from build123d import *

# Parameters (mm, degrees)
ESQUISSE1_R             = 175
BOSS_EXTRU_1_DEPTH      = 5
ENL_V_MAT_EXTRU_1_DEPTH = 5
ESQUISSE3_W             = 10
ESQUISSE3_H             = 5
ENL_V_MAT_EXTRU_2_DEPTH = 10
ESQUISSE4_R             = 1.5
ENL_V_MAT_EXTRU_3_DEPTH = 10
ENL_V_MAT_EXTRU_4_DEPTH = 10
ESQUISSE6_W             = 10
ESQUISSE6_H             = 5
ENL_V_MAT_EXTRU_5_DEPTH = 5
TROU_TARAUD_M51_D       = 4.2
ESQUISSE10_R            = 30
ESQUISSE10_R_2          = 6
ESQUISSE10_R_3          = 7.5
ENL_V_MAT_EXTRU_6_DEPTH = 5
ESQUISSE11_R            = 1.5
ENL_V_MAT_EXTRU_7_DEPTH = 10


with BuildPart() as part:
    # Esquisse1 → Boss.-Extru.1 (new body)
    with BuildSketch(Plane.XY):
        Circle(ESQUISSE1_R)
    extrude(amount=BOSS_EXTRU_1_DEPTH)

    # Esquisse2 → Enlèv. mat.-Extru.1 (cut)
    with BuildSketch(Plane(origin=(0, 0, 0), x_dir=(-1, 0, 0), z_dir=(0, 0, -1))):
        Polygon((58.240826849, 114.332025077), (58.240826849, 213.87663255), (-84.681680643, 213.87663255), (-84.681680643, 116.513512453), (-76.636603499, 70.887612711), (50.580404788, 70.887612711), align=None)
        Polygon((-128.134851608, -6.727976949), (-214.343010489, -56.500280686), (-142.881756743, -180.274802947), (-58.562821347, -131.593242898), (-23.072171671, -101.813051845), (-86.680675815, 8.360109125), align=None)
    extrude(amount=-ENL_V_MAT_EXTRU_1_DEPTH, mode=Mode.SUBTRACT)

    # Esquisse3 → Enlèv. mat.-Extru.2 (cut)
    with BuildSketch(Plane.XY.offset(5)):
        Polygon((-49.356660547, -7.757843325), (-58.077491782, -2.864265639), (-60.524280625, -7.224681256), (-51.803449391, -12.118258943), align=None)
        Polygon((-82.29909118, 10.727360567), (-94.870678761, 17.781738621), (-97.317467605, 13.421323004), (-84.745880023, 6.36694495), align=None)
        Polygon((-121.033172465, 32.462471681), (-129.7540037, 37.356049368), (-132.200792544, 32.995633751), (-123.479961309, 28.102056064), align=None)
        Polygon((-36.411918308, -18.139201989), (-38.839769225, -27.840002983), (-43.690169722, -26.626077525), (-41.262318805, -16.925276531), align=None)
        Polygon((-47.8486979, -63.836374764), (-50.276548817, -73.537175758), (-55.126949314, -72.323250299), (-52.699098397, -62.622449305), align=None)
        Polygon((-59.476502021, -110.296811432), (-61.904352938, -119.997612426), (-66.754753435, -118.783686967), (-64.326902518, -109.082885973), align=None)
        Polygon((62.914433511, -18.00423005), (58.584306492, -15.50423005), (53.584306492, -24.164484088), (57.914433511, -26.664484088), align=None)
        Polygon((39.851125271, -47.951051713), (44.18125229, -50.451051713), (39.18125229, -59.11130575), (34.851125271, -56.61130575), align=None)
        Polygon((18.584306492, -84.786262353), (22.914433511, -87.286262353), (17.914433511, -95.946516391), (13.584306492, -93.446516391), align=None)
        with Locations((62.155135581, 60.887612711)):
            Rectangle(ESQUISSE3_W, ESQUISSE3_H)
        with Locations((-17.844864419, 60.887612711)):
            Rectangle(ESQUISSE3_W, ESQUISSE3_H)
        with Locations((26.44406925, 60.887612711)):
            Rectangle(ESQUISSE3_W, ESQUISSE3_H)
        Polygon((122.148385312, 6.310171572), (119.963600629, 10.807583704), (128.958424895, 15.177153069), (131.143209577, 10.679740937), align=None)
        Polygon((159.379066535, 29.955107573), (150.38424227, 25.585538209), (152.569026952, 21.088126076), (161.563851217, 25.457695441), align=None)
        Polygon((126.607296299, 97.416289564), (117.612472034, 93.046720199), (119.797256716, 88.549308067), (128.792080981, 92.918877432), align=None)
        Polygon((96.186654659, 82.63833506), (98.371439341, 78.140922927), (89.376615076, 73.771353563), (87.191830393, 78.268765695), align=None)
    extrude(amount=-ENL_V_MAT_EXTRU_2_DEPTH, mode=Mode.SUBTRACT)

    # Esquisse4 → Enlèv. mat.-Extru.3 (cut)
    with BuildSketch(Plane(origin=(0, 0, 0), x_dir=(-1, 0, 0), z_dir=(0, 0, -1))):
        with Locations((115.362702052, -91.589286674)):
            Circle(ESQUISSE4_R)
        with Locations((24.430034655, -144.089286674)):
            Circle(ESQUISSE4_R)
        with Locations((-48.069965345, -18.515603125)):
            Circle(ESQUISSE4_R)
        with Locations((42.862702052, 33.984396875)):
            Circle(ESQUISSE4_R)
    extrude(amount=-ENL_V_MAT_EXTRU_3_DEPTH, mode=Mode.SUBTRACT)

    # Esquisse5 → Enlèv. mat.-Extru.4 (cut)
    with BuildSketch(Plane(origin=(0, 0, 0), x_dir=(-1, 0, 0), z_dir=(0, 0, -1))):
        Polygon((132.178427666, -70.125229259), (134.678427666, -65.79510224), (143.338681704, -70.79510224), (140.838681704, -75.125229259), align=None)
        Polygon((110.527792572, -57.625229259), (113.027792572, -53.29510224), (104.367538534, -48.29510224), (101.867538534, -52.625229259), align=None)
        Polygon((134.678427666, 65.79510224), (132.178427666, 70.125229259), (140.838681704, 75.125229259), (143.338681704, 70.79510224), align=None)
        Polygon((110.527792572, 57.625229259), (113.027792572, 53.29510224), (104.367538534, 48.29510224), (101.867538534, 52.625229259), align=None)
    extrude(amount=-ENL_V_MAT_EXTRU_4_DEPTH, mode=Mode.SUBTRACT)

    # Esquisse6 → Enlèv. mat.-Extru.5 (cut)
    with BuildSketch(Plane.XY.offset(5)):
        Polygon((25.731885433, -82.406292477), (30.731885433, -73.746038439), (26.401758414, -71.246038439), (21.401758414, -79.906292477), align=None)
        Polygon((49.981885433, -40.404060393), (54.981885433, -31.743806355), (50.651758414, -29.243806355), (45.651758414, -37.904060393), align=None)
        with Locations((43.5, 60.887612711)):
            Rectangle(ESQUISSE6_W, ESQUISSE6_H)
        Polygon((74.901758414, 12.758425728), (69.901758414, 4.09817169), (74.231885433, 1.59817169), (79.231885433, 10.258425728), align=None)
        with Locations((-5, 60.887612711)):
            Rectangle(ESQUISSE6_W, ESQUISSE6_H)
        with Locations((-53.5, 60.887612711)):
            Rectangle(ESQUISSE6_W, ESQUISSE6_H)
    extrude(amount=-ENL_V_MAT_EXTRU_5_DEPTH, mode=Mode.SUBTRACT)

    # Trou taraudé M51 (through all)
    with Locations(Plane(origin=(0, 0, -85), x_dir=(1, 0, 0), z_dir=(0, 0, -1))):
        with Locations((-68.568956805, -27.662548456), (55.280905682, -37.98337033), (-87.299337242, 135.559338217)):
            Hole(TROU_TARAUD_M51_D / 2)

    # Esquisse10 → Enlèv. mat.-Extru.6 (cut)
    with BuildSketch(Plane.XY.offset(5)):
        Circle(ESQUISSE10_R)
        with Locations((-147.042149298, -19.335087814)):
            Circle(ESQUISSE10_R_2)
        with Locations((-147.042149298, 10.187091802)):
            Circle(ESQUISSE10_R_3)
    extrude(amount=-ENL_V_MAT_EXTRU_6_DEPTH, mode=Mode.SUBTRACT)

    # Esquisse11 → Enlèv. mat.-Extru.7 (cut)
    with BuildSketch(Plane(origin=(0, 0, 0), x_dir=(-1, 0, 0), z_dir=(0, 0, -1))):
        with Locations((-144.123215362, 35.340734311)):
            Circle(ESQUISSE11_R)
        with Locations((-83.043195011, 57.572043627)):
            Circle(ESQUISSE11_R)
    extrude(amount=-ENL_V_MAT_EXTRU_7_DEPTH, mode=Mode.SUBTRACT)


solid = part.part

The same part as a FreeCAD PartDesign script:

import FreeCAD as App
import Part
import Sketcher
Q = App.Units.Quantity

doc = App.newDocument("Part")
body = doc.addObject("PartDesign::Body", "Body")

sketch1 = body.newObject("Sketcher::SketchObject", "Sketch")
sketch1.AttachmentSupport = (doc.getObject("XY_Plane"), [""])
sketch1.MapMode = "FlatFace"
sketch1.addGeometry(Part.Circle(App.Vector(0, 0, 0), App.Vector(0, 0, 1), 175), False)
sketch1.addConstraint([
    Sketcher.Constraint("Coincident", 0, 3, -1, 1),
    Sketcher.Constraint("Diameter", 0, 350.0),
])
pad1 = body.newObject("PartDesign::Pad", "Pad")
pad1.Profile = sketch1
pad1.Length = 5

sketch2 = body.newObject("Sketcher::SketchObject", "Sketch001")
sketch2.AttachmentSupport = (doc.getObject("XY_Plane"), [""])
sketch2.MapMode = "FlatFace"
sketch2.addGeometry([
    Part.LineSegment(App.Vector(-58.240827, 114.332025, 0), App.Vector(-58.240827, 213.876633, 0)),
    Part.LineSegment(App.Vector(-58.240827, 213.876633, 0), App.Vector(84.681681, 213.876633, 0)),
    Part.LineSegment(App.Vector(84.681681, 213.876633, 0), App.Vector(84.681681, 116.513512, 0)),
    Part.LineSegment(App.Vector(84.681681, 116.513512, 0), App.Vector(76.636603, 70.887613, 0)),
    Part.LineSegment(App.Vector(76.636603, 70.887613, 0), App.Vector(-50.580405, 70.887613, 0)),
    Part.LineSegment(App.Vector(-50.580405, 70.887613, 0), App.Vector(-58.240827, 114.332025, 0)),
    Part.LineSegment(App.Vector(128.134852, -6.727977, 0), App.Vector(214.34301, -56.500281, 0)),
    Part.LineSegment(App.Vector(214.34301, -56.500281, 0), App.Vector(142.881757, -180.274803, 0)),
    Part.LineSegment(App.Vector(142.881757, -180.274803, 0), App.Vector(58.562821, -131.593243, 0)),
    Part.LineSegment(App.Vector(58.562821, -131.593243, 0), App.Vector(23.072172, -101.813052, 0)),
    Part.LineSegment(App.Vector(23.072172, -101.813052, 0), App.Vector(86.680676, 8.360109, 0)),
    Part.LineSegment(App.Vector(86.680676, 8.360109, 0), App.Vector(128.134852, -6.727977, 0)),
], False)
sketch2.addConstraint([
    Sketcher.Constraint("Coincident", 0, 2, 1, 1),
    Sketcher.Constraint("Coincident", 1, 2, 2, 1),
    Sketcher.Constraint("Coincident", 2, 2, 3, 1),
    Sketcher.Constraint("Coincident", 3, 2, 4, 1),
    Sketcher.Constraint("Coincident", 4, 2, 5, 1),
    Sketcher.Constraint("Coincident", 5, 2, 0, 1),
    Sketcher.Constraint("Coincident", 6, 2, 7, 1),
    Sketcher.Constraint("Coincident", 7, 2, 8, 1),
    Sketcher.Constraint("Coincident", 8, 2, 9, 1),
    Sketcher.Constraint("Coincident", 9, 2, 10, 1),
    Sketcher.Constraint("Coincident", 10, 2, 11, 1),
    Sketcher.Constraint("Coincident", 11, 2, 6, 1),
    Sketcher.Constraint("Vertical", 0),
    Sketcher.Constraint("Horizontal", 1),
    Sketcher.Constraint("Vertical", 2),
    Sketcher.Constraint("Horizontal", 4),
    Sketcher.Constraint("Perpendicular", 6, 7),
    Sketcher.Constraint("Perpendicular", 7, 8),
    Sketcher.Constraint("Perpendicular", 8, 10),
    Sketcher.Constraint("Equal", 3, 9),
    Sketcher.Constraint("Equal", 5, 11),
    Sketcher.Constraint("Angle", 3, Q("-100 deg")),
    Sketcher.Constraint("Angle", 5, Q("100 deg")),
    Sketcher.Constraint("Angle", 6, Q("-30 deg")),
    Sketcher.Constraint("Angle", 9, Q("140 deg")),
    Sketcher.Constraint("Angle", 11, Q("-20 deg")),
    Sketcher.Constraint("DistanceX", 4, 2, 4, 1, 127.217008),
    Sketcher.Constraint("DistanceY", 2, 2, 2, 1, 97.36312),
    Sketcher.Constraint("DistanceY", 3, 2, 2, 2, 45.6259),
    Sketcher.Constraint("Distance", 8, 97.36312),
    Sketcher.Constraint("Distance", 10, 127.217008),
    Sketcher.Constraint("DistanceX", 1, 1, 1, 2, 142.922507),
    Sketcher.Constraint("DistanceX", -1, 1, 1, 2, 84.681681),
    Sketcher.Constraint("DistanceX", -1, 1, 6, 2, 214.34301),
    Sketcher.Constraint("DistanceY", 6, 2, -1, 1, 56.500281),
    Sketcher.Constraint("DistanceY", 7, 2, 5, 2, 294.606828),
])
pocket1 = body.newObject("PartDesign::Pocket", "Pocket")
pocket1.Profile = sketch2
pocket1.Length = 5
pocket1.Reversed = True

sketch3 = body.newObject("Sketcher::SketchObject", "Sketch002")
sketch3.AttachmentSupport = (doc.getObject("XY_Plane"), [""])
sketch3.MapMode = "FlatFace"
sketch3.AttachmentOffset = App.Placement(App.Vector(0, 0, 5), App.Rotation())
sketch3.addGeometry([
    Part.LineSegment(App.Vector(-49.356661, -7.757843, 0), App.Vector(-58.077492, -2.864266, 0)),
    Part.LineSegment(App.Vector(-58.077492, -2.864266, 0), App.Vector(-60.524281, -7.224681, 0)),
    Part.LineSegment(App.Vector(-60.524281, -7.224681, 0), App.Vector(-51.803449, -12.118259, 0)),
    Part.LineSegment(App.Vector(-51.803449, -12.118259, 0), App.Vector(-49.356661, -7.757843, 0)),
    Part.LineSegment(App.Vector(-82.299091, 10.727361, 0), App.Vector(-94.870679, 17.781739, 0)),
    Part.LineSegment(App.Vector(-94.870679, 17.781739, 0), App.Vector(-97.317468, 13.421323, 0)),
    Part.LineSegment(App.Vector(-97.317468, 13.421323, 0), App.Vector(-84.74588, 6.366945, 0)),
    Part.LineSegment(App.Vector(-84.74588, 6.366945, 0), App.Vector(-82.299091, 10.727361, 0)),
    Part.LineSegment(App.Vector(-121.033172, 32.462472, 0), App.Vector(-129.754004, 37.356049, 0)),
    Part.LineSegment(App.Vector(-129.754004, 37.356049, 0), App.Vector(-132.200793, 32.995634, 0)),
    Part.LineSegment(App.Vector(-132.200793, 32.995634, 0), App.Vector(-123.479961, 28.102056, 0)),
    Part.LineSegment(App.Vector(-123.479961, 28.102056, 0), App.Vector(-121.033172, 32.462472, 0)),
    Part.LineSegment(App.Vector(-38.839769, -27.840003, 0), App.Vector(-36.411918, -18.139202, 0)),
    Part.LineSegment(App.Vector(-36.411918, -18.139202, 0), App.Vector(-41.262319, -16.925277, 0)),
    Part.LineSegment(App.Vector(-41.262319, -16.925277, 0), App.Vector(-43.69017, -26.626078, 0)),
    Part.LineSegment(App.Vector(-43.69017, -26.626078, 0), App.Vector(-38.839769, -27.840003, 0)),
    Part.LineSegment(App.Vector(-50.276549, -73.537176, 0), App.Vector(-47.848698, -63.836375, 0)),
    Part.LineSegment(App.Vector(-47.848698, -63.836375, 0), App.Vector(-52.699098, -62.622449, 0)),
    Part.LineSegment(App.Vector(-52.699098, -62.622449, 0), App.Vector(-55.126949, -72.32325, 0)),
    Part.LineSegment(App.Vector(-55.126949, -72.32325, 0), App.Vector(-50.276549, -73.537176, 0)),
    Part.LineSegment(App.Vector(-61.904353, -119.997612, 0), App.Vector(-59.476502, -110.296811, 0)),
    Part.LineSegment(App.Vector(-59.476502, -110.296811, 0), App.Vector(-64.326903, -109.082886, 0)),
    Part.LineSegment(App.Vector(-64.326903, -109.082886, 0), App.Vector(-66.754753, -118.783687, 0)),
    Part.LineSegment(App.Vector(-66.754753, -118.783687, 0), App.Vector(-61.904353, -119.997612, 0)),
    Part.LineSegment(App.Vector(62.914434, -18.00423, 0), App.Vector(58.584306, -15.50423, 0)),
    Part.LineSegment(App.Vector(58.584306, -15.50423, 0), App.Vector(53.584306, -24.164484, 0)),
    Part.LineSegment(App.Vector(53.584306, -24.164484, 0), App.Vector(57.914434, -26.664484, 0)),
    Part.LineSegment(App.Vector(57.914434, -26.664484, 0), App.Vector(62.914434, -18.00423, 0)),
    Part.LineSegment(App.Vector(44.181252, -50.451052, 0), App.Vector(39.851125, -47.951052, 0)),
    Part.LineSegment(App.Vector(39.851125, -47.951052, 0), App.Vector(34.851125, -56.611306, 0)),
    Part.LineSegment(App.Vector(34.851125, -56.611306, 0), App.Vector(39.181252, -59.111306, 0)),
    Part.LineSegment(App.Vector(39.181252, -59.111306, 0), App.Vector(44.181252, -50.451052, 0)),
    Part.LineSegment(App.Vector(22.914434, -87.286262, 0), App.Vector(18.584306, -84.786262, 0)),
    Part.LineSegment(App.Vector(18.584306, -84.786262, 0), App.Vector(13.584306, -93.446516, 0)),
    Part.LineSegment(App.Vector(13.584306, -93.446516, 0), App.Vector(17.914434, -95.946516, 0)),
    Part.LineSegment(App.Vector(17.914434, -95.946516, 0), App.Vector(22.914434, -87.286262, 0)),
    Part.LineSegment(App.Vector(57.155136, 63.387613, 0), App.Vector(57.155136, 58.387613, 0)),
    Part.LineSegment(App.Vector(57.155136, 58.387613, 0), App.Vector(67.155136, 58.387613, 0)),
    Part.LineSegment(App.Vector(67.155136, 58.387613, 0), App.Vector(67.155136, 63.387613, 0)),
    Part.LineSegment(App.Vector(67.155136, 63.387613, 0), App.Vector(57.155136, 63.387613, 0)),
    Part.LineSegment(App.Vector(-22.844864, 63.387613, 0), App.Vector(-22.844864, 58.387613, 0)),
    Part.LineSegment(App.Vector(-22.844864, 58.387613, 0), App.Vector(-12.844864, 58.387613, 0)),
    Part.LineSegment(App.Vector(-12.844864, 58.387613, 0), App.Vector(-12.844864, 63.387613, 0)),
    Part.LineSegment(App.Vector(-12.844864, 63.387613, 0), App.Vector(-22.844864, 63.387613, 0)),
    Part.LineSegment(App.Vector(21.444069, 63.387613, 0), App.Vector(21.444069, 58.387613, 0)),
    Part.LineSegment(App.Vector(21.444069, 58.387613, 0), App.Vector(31.444069, 58.387613, 0)),
    Part.LineSegment(App.Vector(31.444069, 58.387613, 0), App.Vector(31.444069, 63.387613, 0)),
    Part.LineSegment(App.Vector(31.444069, 63.387613, 0), App.Vector(21.444069, 63.387613, 0)),
    Part.LineSegment(App.Vector(119.963601, 10.807584, 0), App.Vector(122.148385, 6.310172, 0)),
    Part.LineSegment(App.Vector(122.148385, 6.310172, 0), App.Vector(131.14321, 10.679741, 0)),
    Part.LineSegment(App.Vector(131.14321, 10.679741, 0), App.Vector(128.958425, 15.177153, 0)),
    Part.LineSegment(App.Vector(128.958425, 15.177153, 0), App.Vector(119.963601, 10.807584, 0)),
    Part.LineSegment(App.Vector(159.379067, 29.955108, 0), App.Vector(150.384242, 25.585538, 0)),
    Part.LineSegment(App.Vector(150.384242, 25.585538, 0), App.Vector(152.569027, 21.088126, 0)),
    Part.LineSegment(App.Vector(152.569027, 21.088126, 0), App.Vector(161.563851, 25.457695, 0)),
    Part.LineSegment(App.Vector(161.563851, 25.457695, 0), App.Vector(159.379067, 29.955108, 0)),
    Part.LineSegment(App.Vector(126.607296, 97.41629, 0), App.Vector(117.612472, 93.04672, 0)),
    Part.LineSegment(App.Vector(117.612472, 93.04672, 0), App.Vector(119.797257, 88.549308, 0)),
    Part.LineSegment(App.Vector(119.797257, 88.549308, 0), App.Vector(128.792081, 92.918877, 0)),
    Part.LineSegment(App.Vector(128.792081, 92.918877, 0), App.Vector(126.607296, 97.41629, 0)),
    Part.LineSegment(App.Vector(98.371439, 78.140923, 0), App.Vector(96.186655, 82.638335, 0)),
    Part.LineSegment(App.Vector(96.186655, 82.638335, 0), App.Vector(87.19183, 78.268766, 0)),
    Part.LineSegment(App.Vector(87.19183, 78.268766, 0), App.Vector(89.376615, 73.771354, 0)),
    Part.LineSegment(App.Vector(89.376615, 73.771354, 0), App.Vector(98.371439, 78.140923, 0)),
], False)
sketch3.addConstraint([
    Sketcher.Constraint("Coincident", 0, 2, 1, 1),
    Sketcher.Constraint("Coincident", 1, 2, 2, 1),
    Sketcher.Constraint("Coincident", 2, 2, 3, 1),
    Sketcher.Constraint("Coincident", 3, 2, 0, 1),
    Sketcher.Constraint("Coincident", 4, 2, 5, 1),
    Sketcher.Constraint("Coincident", 5, 2, 6, 1),
    Sketcher.Constraint("Coincident", 6, 2, 7, 1),
    Sketcher.Constraint("Coincident", 7, 2, 4, 1),
    Sketcher.Constraint("Coincident", 8, 2, 9, 1),
    Sketcher.Constraint("Coincident", 9, 2, 10, 1),
    Sketcher.Constraint("Coincident", 10, 2, 11, 1),
    Sketcher.Constraint("Coincident", 11, 2, 8, 1),
    Sketcher.Constraint("Coincident", 12, 2, 13, 1),
    Sketcher.Constraint("Coincident", 13, 2, 14, 1),
    Sketcher.Constraint("Coincident", 14, 2, 15, 1),
    Sketcher.Constraint("Coincident", 15, 2, 12, 1),
    Sketcher.Constraint("Coincident", 16, 2, 17, 1),
    Sketcher.Constraint("Coincident", 17, 2, 18, 1),
    Sketcher.Constraint("Coincident", 18, 2, 19, 1),
    Sketcher.Constraint("Coincident", 19, 2, 16, 1),
    Sketcher.Constraint("Coincident", 20, 2, 21, 1),
    Sketcher.Constraint("Coincident", 21, 2, 22, 1),
    Sketcher.Constraint("Coincident", 22, 2, 23, 1),
    Sketcher.Constraint("Coincident", 23, 2, 20, 1),
    Sketcher.Constraint("Coincident", 24, 2, 25, 1),
    Sketcher.Constraint("Coincident", 25, 2, 26, 1),
    Sketcher.Constraint("Coincident", 26, 2, 27, 1),
    Sketcher.Constraint("Coincident", 27, 2, 24, 1),
    Sketcher.Constraint("Coincident", 28, 2, 29, 1),
    Sketcher.Constraint("Coincident", 29, 2, 30, 1),
    Sketcher.Constraint("Coincident", 30, 2, 31, 1),
    Sketcher.Constraint("Coincident", 31, 2, 28, 1),
    Sketcher.Constraint("Coincident", 32, 2, 33, 1),
    Sketcher.Constraint("Coincident", 33, 2, 34, 1),
    Sketcher.Constraint("Coincident", 34, 2, 35, 1),
    Sketcher.Constraint("Coincident", 35, 2, 32, 1),
    Sketcher.Constraint("Coincident", 36, 2, 37, 1),
    Sketcher.Constraint("Coincident", 37, 2, 38, 1),
    Sketcher.Constraint("Coincident", 38, 2, 39, 1),
    Sketcher.Constraint("Coincident", 39, 2, 36, 1),
    Sketcher.Constraint("Coincident", 40, 2, 41, 1),
    Sketcher.Constraint("Coincident", 41, 2, 42, 1),
    Sketcher.Constraint("Coincident", 42, 2, 43, 1),
    Sketcher.Constraint("Coincident", 43, 2, 40, 1),
    Sketcher.Constraint("Coincident", 44, 2, 45, 1),
    Sketcher.Constraint("Coincident", 45, 2, 46, 1),
    Sketcher.Constraint("Coincident", 46, 2, 47, 1),
    Sketcher.Constraint("Coincident", 47, 2, 44, 1),
    Sketcher.Constraint("Coincident", 48, 2, 49, 1),
    Sketcher.Constraint("Coincident", 49, 2, 50, 1),
    Sketcher.Constraint("Coincident", 50, 2, 51, 1),
    Sketcher.Constraint("Coincident", 51, 2, 48, 1),
    Sketcher.Constraint("Coincident", 52, 2, 53, 1),
    Sketcher.Constraint("Coincident", 53, 2, 54, 1),
    Sketcher.Constraint("Coincident", 54, 2, 55, 1),
    Sketcher.Constraint("Coincident", 55, 2, 52, 1),
    Sketcher.Constraint("Coincident", 56, 2, 57, 1),
    Sketcher.Constraint("Coincident", 57, 2, 58, 1),
    Sketcher.Constraint("Coincident", 58, 2, 59, 1),
    Sketcher.Constraint("Coincident", 59, 2, 56, 1),
    Sketcher.Constraint("Coincident", 60, 2, 61, 1),
    Sketcher.Constraint("Coincident", 61, 2, 62, 1),
    Sketcher.Constraint("Coincident", 62, 2, 63, 1),
    Sketcher.Constraint("Coincident", 63, 2, 60, 1),
    Sketcher.Constraint("Vertical", 36),
    Sketcher.Constraint("Horizontal", 37),
    Sketcher.Constraint("Vertical", 38),
    Sketcher.Constraint("Horizontal", 39),
    Sketcher.Constraint("Vertical", 40),
    Sketcher.Constraint("Horizontal", 41),
    Sketcher.Constraint("Vertical", 42),
    Sketcher.Constraint("Horizontal", 43),
    Sketcher.Constraint("Vertical", 44),
    Sketcher.Constraint("Horizontal", 45),
    Sketcher.Constraint("Vertical", 46),
    Sketcher.Constraint("Horizontal", 47),
    Sketcher.Constraint("Perpendicular", 0, 1),
    Sketcher.Constraint("Perpendicular", 1, 2),
    Sketcher.Constraint("Perpendicular", 2, 3),
    Sketcher.Constraint("Perpendicular", 3, 4),
    Sketcher.Constraint("Perpendicular", 4, 5),
    Sketcher.Constraint("Perpendicular", 5, 6),
    Sketcher.Constraint("Perpendicular", 6, 7),
    Sketcher.Constraint("Perpendicular", 7, 8),
    Sketcher.Constraint("Perpendicular", 8, 9),
    Sketcher.Constraint("Perpendicular", 9, 10),
    Sketcher.Constraint("Perpendicular", 10, 11),
    Sketcher.Constraint("Perpendicular", 12, 13),
    Sketcher.Constraint("Perpendicular", 13, 14),
    Sketcher.Constraint("Perpendicular", 14, 15),
    Sketcher.Constraint("Perpendicular", 15, 16),
    Sketcher.Constraint("Perpendicular", 16, 17),
    Sketcher.Constraint("Perpendicular", 17, 18),
    Sketcher.Constraint("Perpendicular", 18, 19),
    Sketcher.Constraint("Perpendicular", 19, 20),
    Sketcher.Constraint("Perpendicular", 20, 21),
    Sketcher.Constraint("Perpendicular", 21, 22),
    Sketcher.Constraint("Perpendicular", 22, 23),
    Sketcher.Constraint("Perpendicular", 24, 25),
    Sketcher.Constraint("Perpendicular", 25, 26),
    Sketcher.Constraint("Perpendicular", 26, 27),
    Sketcher.Constraint("Perpendicular", 27, 28),
    Sketcher.Constraint("Perpendicular", 28, 29),
    Sketcher.Constraint("Perpendicular", 29, 30),
    Sketcher.Constraint("Perpendicular", 30, 31),
    Sketcher.Constraint("Perpendicular", 31, 32),
    Sketcher.Constraint("Perpendicular", 32, 33),
    Sketcher.Constraint("Perpendicular", 33, 34),
    Sketcher.Constraint("Perpendicular", 34, 35),
    Sketcher.Constraint("Perpendicular", 48, 49),
    Sketcher.Constraint("Perpendicular", 49, 50),
    Sketcher.Constraint("Perpendicular", 50, 51),
    Sketcher.Constraint("Parallel", 51, 52),
    Sketcher.Constraint("Perpendicular", 52, 53),
    Sketcher.Constraint("Perpendicular", 53, 54),
    Sketcher.Constraint("Perpendicular", 54, 55),
    Sketcher.Constraint("Perpendicular", 55, 56),
    Sketcher.Constraint("Perpendicular", 56, 57),
    Sketcher.Constraint("Perpendicular", 57, 58),
    Sketcher.Constraint("Perpendicular", 58, 59),
    Sketcher.Constraint("Parallel", 59, 60),
    Sketcher.Constraint("Perpendicular", 60, 61),
    Sketcher.Constraint("Perpendicular", 61, 62),
    Sketcher.Constraint("Perpendicular", 62, 63),
    Sketcher.Constraint("Horizontal", 37, 2, 40, 2),
    Sketcher.Constraint("Horizontal", 39, 2, 42, 2),
    Sketcher.Constraint("Horizontal", 41, 2, 44, 2),
    Sketcher.Constraint("Horizontal", 43, 2, 46, 2),
    Sketcher.Constraint("Equal", 39, 41),
    Sketcher.Constraint("Equal", 43, 45),
    Sketcher.Constraint("Equal", 3, 5),
    Sketcher.Constraint("Equal", 2, 8),
    Sketcher.Constraint("Equal", 7, 9),
    Sketcher.Constraint("Equal", 10, 12),
    Sketcher.Constraint("Equal", 11, 13),
    Sketcher.Constraint("Equal", 14, 16),
    Sketcher.Constraint("Equal", 15, 17),
    Sketcher.Constraint("Equal", 18, 20),
    Sketcher.Constraint("Equal", 19, 21),
    Sketcher.Constraint("Equal", 23, 24),
    Sketcher.Constraint("Equal", 22, 25),
    Sketcher.Constraint("Equal", 26, 28),
    Sketcher.Constraint("Equal", 27, 29),
    Sketcher.Constraint("Equal", 30, 32),
    Sketcher.Constraint("Equal", 31, 33),
    Sketcher.Constraint("Equal", 34, 48),
    Sketcher.Constraint("Equal", 35, 49),
    Sketcher.Constraint("Equal", 51, 52),
    Sketcher.Constraint("Equal", 50, 53),
    Sketcher.Constraint("Equal", 54, 56),
    Sketcher.Constraint("Equal", 55, 57),
    Sketcher.Constraint("Equal", 59, 60),
    Sketcher.Constraint("Equal", 58, 61),
    Sketcher.Constraint("DistanceX", 37, 1, 37, 2, 10.0),
    Sketcher.Constraint("DistanceY", 36, 2, 36, 1, 5.0),
    Sketcher.Constraint("Angle", 24, Q("150 deg")),
    Sketcher.Constraint("Distance", 0, 10.0),
    Sketcher.Constraint("Distance", 1, 5.0),
    Sketcher.Constraint("DistanceY", 12, 2, -1, 1, 18.139202),
    Sketcher.Constraint("DistanceX", 17, 2, -1, 1, 52.699098),
    Sketcher.Constraint("DistanceX", -1, 1, 51, 2, 119.963601),
    Sketcher.Constraint("DistanceX", 0, 2, -1, 1, 58.077492),
    Sketcher.Constraint("DistanceX", 1, 2, -1, 1, 60.524281),
    Sketcher.Constraint("DistanceY", 1, 2, -1, 1, 7.224681),
    Sketcher.Constraint("DistanceX", 4, 2, -1, 1, 94.870679),
    Sketcher.Constraint("DistanceY", -1, 1, 4, 2, 17.781739),
    Sketcher.Constraint("DistanceX", 6, 2, -1, 1, 84.74588),
    Sketcher.Constraint("DistanceY", -1, 1, 8, 2, 37.356049),
    Sketcher.Constraint("DistanceX", 10, 2, -1, 1, 123.479961),
    Sketcher.Constraint("DistanceX", 12, 2, -1, 1, 36.411918),
    Sketcher.Constraint("DistanceX", 13, 2, -1, 1, 41.262319),
    Sketcher.Constraint("DistanceY", 17, 2, -1, 1, 62.622449),
    Sketcher.Constraint("DistanceY", 20, 2, -1, 1, 110.296811),
    Sketcher.Constraint("DistanceY", 24, 2, -1, 1, 15.50423),
    Sketcher.Constraint("DistanceY", 28, 2, -1, 1, 47.951052),
    Sketcher.Constraint("DistanceX", -1, 1, 44, 2, 21.444069),
    Sketcher.Constraint("DistanceY", -1, 1, 48, 2, 6.310172),
    Sketcher.Constraint("DistanceX", -1, 1, 49, 2, 131.14321),
    Sketcher.Constraint("DistanceY", -1, 1, 52, 2, 25.585538),
    Sketcher.Constraint("DistanceX", -1, 1, 54, 2, 161.563851),
    Sketcher.Constraint("DistanceY", -1, 1, 56, 2, 93.04672),
    Sketcher.Constraint("DistanceX", -1, 1, 58, 2, 128.792081),
    Sketcher.Constraint("DistanceX", -1, 1, 61, 2, 87.19183),
    Sketcher.Constraint("DistanceX", 20, 2, -1, 1, 59.476502),
    Sketcher.Constraint("DistanceX", -1, 1, 24, 2, 58.584306),
    Sketcher.Constraint("DistanceX", -1, 1, 28, 2, 39.851125),
    Sketcher.Constraint("DistanceX", -1, 1, 32, 2, 18.584306),
    Sketcher.Constraint("DistanceY", 32, 2, -1, 1, 84.786262),
    Sketcher.Constraint("DistanceX", -1, 1, 36, 2, 57.155136),
    Sketcher.Constraint("DistanceY", -1, 1, 36, 2, 58.387613),
    Sketcher.Constraint("DistanceX", 40, 2, -1, 1, 22.844864),
    Sketcher.Constraint("DistanceY", -1, 1, 60, 2, 82.638335),
])
pocket2 = body.newObject("PartDesign::Pocket", "Pocket001")
pocket2.Profile = sketch3
pocket2.Length = 10

sketch4 = body.newObject("Sketcher::SketchObject", "Sketch003")
sketch4.AttachmentSupport = (doc.getObject("XY_Plane"), [""])
sketch4.MapMode = "FlatFace"
sketch4.addGeometry([
    Part.Circle(App.Vector(-115.362702, -91.589287, 0), App.Vector(0, 0, 1), 1.5),
    Part.Circle(App.Vector(-24.430035, -144.089287, 0), App.Vector(0, 0, 1), 1.5),
    Part.Circle(App.Vector(48.069965, -18.515603, 0), App.Vector(0, 0, 1), 1.5),
    Part.Circle(App.Vector(-42.862702, 33.984397, 0), App.Vector(0, 0, 1), 1.5),
], False)
sketch4.addConstraint([
    Sketcher.Constraint("Equal", 0, 1),
    Sketcher.Constraint("Equal", 1, 2),
    Sketcher.Constraint("Equal", 2, 3),
    Sketcher.Constraint("Diameter", 0, 3.0),
    Sketcher.Constraint("DistanceY", 1, 3, 0, 3, 52.5),
    Sketcher.Constraint("DistanceX", 1, 3, 2, 3, 72.5),
    Sketcher.Constraint("DistanceY", 2, 3, 3, 3, 52.5),
    Sketcher.Constraint("DistanceX", 0, 3, 3, 3, 72.5),
    Sketcher.Constraint("DistanceX", 0, 3, -1, 1, 115.362702),
    Sketcher.Constraint("DistanceY", 0, 3, -1, 1, 91.589287),
    Sketcher.Constraint("DistanceX", 1, 3, -1, 1, 24.430035),
    Sketcher.Constraint("DistanceY", 2, 3, -1, 1, 18.515603),
])
pocket3 = body.newObject("PartDesign::Pocket", "Pocket002")
pocket3.Profile = sketch4
pocket3.Length = 10
pocket3.Reversed = True

sketch5 = body.newObject("Sketcher::SketchObject", "Sketch004")
sketch5.AttachmentSupport = (doc.getObject("XY_Plane"), [""])
sketch5.MapMode = "FlatFace"
sketch5.addGeometry([
    Part.LineSegment(App.Vector(-134.678428, -65.795102, 0), App.Vector(-132.178428, -70.125229, 0)),
    Part.LineSegment(App.Vector(-132.178428, -70.125229, 0), App.Vector(-140.838682, -75.125229, 0)),
    Part.LineSegment(App.Vector(-140.838682, -75.125229, 0), App.Vector(-143.338682, -70.795102, 0)),
    Part.LineSegment(App.Vector(-143.338682, -70.795102, 0), App.Vector(-134.678428, -65.795102, 0)),
    Part.LineSegment(App.Vector(-110.527793, -57.625229, 0), App.Vector(-113.027793, -53.295102, 0)),
    Part.LineSegment(App.Vector(-113.027793, -53.295102, 0), App.Vector(-104.367539, -48.295102, 0)),
    Part.LineSegment(App.Vector(-104.367539, -48.295102, 0), App.Vector(-101.867539, -52.625229, 0)),
    Part.LineSegment(App.Vector(-101.867539, -52.625229, 0), App.Vector(-110.527793, -57.625229, 0)),
    Part.LineSegment(App.Vector(-132.178428, 70.125229, 0), App.Vector(-134.678428, 65.795102, 0)),
    Part.LineSegment(App.Vector(-134.678428, 65.795102, 0), App.Vector(-143.338682, 70.795102, 0)),
    Part.LineSegment(App.Vector(-143.338682, 70.795102, 0), App.Vector(-140.838682, 75.125229, 0)),
    Part.LineSegment(App.Vector(-140.838682, 75.125229, 0), App.Vector(-132.178428, 70.125229, 0)),
    Part.LineSegment(App.Vector(-113.027793, 53.295102, 0), App.Vector(-110.527793, 57.625229, 0)),
    Part.LineSegment(App.Vector(-110.527793, 57.625229, 0), App.Vector(-101.867539, 52.625229, 0)),
    Part.LineSegment(App.Vector(-101.867539, 52.625229, 0), App.Vector(-104.367539, 48.295102, 0)),
    Part.LineSegment(App.Vector(-104.367539, 48.295102, 0), App.Vector(-113.027793, 53.295102, 0)),
], False)
sketch5.addConstraint([
    Sketcher.Constraint("Coincident", 0, 2, 1, 1),
    Sketcher.Constraint("Coincident", 1, 2, 2, 1),
    Sketcher.Constraint("Coincident", 2, 2, 3, 1),
    Sketcher.Constraint("Coincident", 3, 2, 0, 1),
    Sketcher.Constraint("Coincident", 4, 2, 5, 1),
    Sketcher.Constraint("Coincident", 5, 2, 6, 1),
    Sketcher.Constraint("Coincident", 6, 2, 7, 1),
    Sketcher.Constraint("Coincident", 7, 2, 4, 1),
    Sketcher.Constraint("Coincident", 8, 2, 9, 1),
    Sketcher.Constraint("Coincident", 9, 2, 10, 1),
    Sketcher.Constraint("Coincident", 10, 2, 11, 1),
    Sketcher.Constraint("Coincident", 11, 2, 8, 1),
    Sketcher.Constraint("Coincident", 12, 2, 13, 1),
    Sketcher.Constraint("Coincident", 13, 2, 14, 1),
    Sketcher.Constraint("Coincident", 14, 2, 15, 1),
    Sketcher.Constraint("Coincident", 15, 2, 12, 1),
    Sketcher.Constraint("Symmetric", 3, 2, 8, 2, -1),
    Sketcher.Constraint("Symmetric", 2, 2, 9, 2, -1),
    Sketcher.Constraint("Symmetric", 1, 2, 10, 2, -1),
    Sketcher.Constraint("Symmetric", 0, 2, 11, 2, -1),
    Sketcher.Constraint("Symmetric", 7, 2, 12, 2, -1),
    Sketcher.Constraint("Symmetric", 6, 2, 13, 2, -1),
    Sketcher.Constraint("Symmetric", 5, 2, 14, 2, -1),
    Sketcher.Constraint("Symmetric", 4, 2, 15, 2, -1),
    Sketcher.Constraint("Perpendicular", 0, 1),
    Sketcher.Constraint("Perpendicular", 1, 2),
    Sketcher.Constraint("Perpendicular", 2, 3),
    Sketcher.Constraint("Perpendicular", 3, 4),
    Sketcher.Constraint("Perpendicular", 4, 5),
    Sketcher.Constraint("Perpendicular", 5, 6),
    Sketcher.Constraint("Perpendicular", 6, 7),
    Sketcher.Constraint("Equal", 2, 4),
    Sketcher.Constraint("Equal", 3, 5),
    Sketcher.Constraint("Angle", 0, Q("-60 deg")),
    Sketcher.Constraint("Distance", 0, 5.0),
    Sketcher.Constraint("Distance", 1, 10.0),
    Sketcher.Constraint("DistanceY", 3, 2, 4, 2, 12.5),
    Sketcher.Constraint("DistanceY", 0, 2, -1, 1, 70.125229),
    Sketcher.Constraint("DistanceX", 1, 2, -1, 1, 140.838682),
    Sketcher.Constraint("DistanceX", 5, 2, -1, 1, 104.367539),
])
pocket4 = body.newObject("PartDesign::Pocket", "Pocket003")
pocket4.Profile = sketch5
pocket4.Length = 10
pocket4.Reversed = True

sketch6 = body.newObject("Sketcher::SketchObject", "Sketch005")
sketch6.AttachmentSupport = (doc.getObject("XY_Plane"), [""])
sketch6.MapMode = "FlatFace"
sketch6.AttachmentOffset = App.Placement(App.Vector(0, 0, 5), App.Rotation())
sketch6.addGeometry([
    Part.LineSegment(App.Vector(25.731885, -82.406292, 0), App.Vector(30.731885, -73.746038, 0)),
    Part.LineSegment(App.Vector(30.731885, -73.746038, 0), App.Vector(26.401758, -71.246038, 0)),
    Part.LineSegment(App.Vector(26.401758, -71.246038, 0), App.Vector(21.401758, -79.906292, 0)),
    Part.LineSegment(App.Vector(21.401758, -79.906292, 0), App.Vector(25.731885, -82.406292, 0)),
    Part.LineSegment(App.Vector(49.981885, -40.40406, 0), App.Vector(54.981885, -31.743806, 0)),
    Part.LineSegment(App.Vector(54.981885, -31.743806, 0), App.Vector(50.651758, -29.243806, 0)),
    Part.LineSegment(App.Vector(50.651758, -29.243806, 0), App.Vector(45.651758, -37.90406, 0)),
    Part.LineSegment(App.Vector(45.651758, -37.90406, 0), App.Vector(49.981885, -40.40406, 0)),
    Part.LineSegment(App.Vector(38.5, 63.387613, 0), App.Vector(38.5, 58.387613, 0)),
    Part.LineSegment(App.Vector(38.5, 58.387613, 0), App.Vector(48.5, 58.387613, 0)),
    Part.LineSegment(App.Vector(48.5, 58.387613, 0), App.Vector(48.5, 63.387613, 0)),
    Part.LineSegment(App.Vector(48.5, 63.387613, 0), App.Vector(38.5, 63.387613, 0)),
    Part.LineSegment(App.Vector(74.901758, 12.758426, 0), App.Vector(69.901758, 4.098172, 0)),
    Part.LineSegment(App.Vector(69.901758, 4.098172, 0), App.Vector(74.231885, 1.598172, 0)),
    Part.LineSegment(App.Vector(74.231885, 1.598172, 0), App.Vector(79.231885, 10.258426, 0)),
    Part.LineSegment(App.Vector(79.231885, 10.258426, 0), App.Vector(74.901758, 12.758426, 0)),
    Part.LineSegment(App.Vector(-10, 63.387613, 0), App.Vector(-10, 58.387613, 0)),
    Part.LineSegment(App.Vector(-10, 58.387613, 0), App.Vector(0, 58.387613, 0)),
    Part.LineSegment(App.Vector(0, 58.387613, 0), App.Vector(0, 63.387613, 0)),
    Part.LineSegment(App.Vector(0, 63.387613, 0), App.Vector(-10, 63.387613, 0)),
    Part.LineSegment(App.Vector(-58.5, 63.387613, 0), App.Vector(-58.5, 58.387613, 0)),
    Part.LineSegment(App.Vector(-58.5, 58.387613, 0), App.Vector(-48.5, 58.387613, 0)),
    Part.LineSegment(App.Vector(-48.5, 58.387613, 0), App.Vector(-48.5, 63.387613, 0)),
    Part.LineSegment(App.Vector(-48.5, 63.387613, 0), App.Vector(-58.5, 63.387613, 0)),
], False)
sketch6.addConstraint([
    Sketcher.Constraint("Coincident", 0, 2, 1, 1),
    Sketcher.Constraint("Coincident", 1, 2, 2, 1),
    Sketcher.Constraint("Coincident", 2, 2, 3, 1),
    Sketcher.Constraint("Coincident", 3, 2, 0, 1),
    Sketcher.Constraint("Coincident", 4, 2, 5, 1),
    Sketcher.Constraint("Coincident", 5, 2, 6, 1),
    Sketcher.Constraint("Coincident", 6, 2, 7, 1),
    Sketcher.Constraint("Coincident", 7, 2, 4, 1),
    Sketcher.Constraint("Coincident", 8, 2, 9, 1),
    Sketcher.Constraint("Coincident", 9, 2, 10, 1),
    Sketcher.Constraint("Coincident", 10, 2, 11, 1),
    Sketcher.Constraint("Coincident", 11, 2, 8, 1),
    Sketcher.Constraint("Coincident", 12, 2, 13, 1),
    Sketcher.Constraint("Coincident", 13, 2, 14, 1),
    Sketcher.Constraint("Coincident", 14, 2, 15, 1),
    Sketcher.Constraint("Coincident", 15, 2, 12, 1),
    Sketcher.Constraint("Coincident", 16, 2, 17, 1),
    Sketcher.Constraint("Coincident", 17, 2, 18, 1),
    Sketcher.Constraint("Coincident", 18, 2, 19, 1),
    Sketcher.Constraint("Coincident", 19, 2, 16, 1),
    Sketcher.Constraint("Coincident", 20, 2, 21, 1),
    Sketcher.Constraint("Coincident", 21, 2, 22, 1),
    Sketcher.Constraint("Coincident", 22, 2, 23, 1),
    Sketcher.Constraint("Coincident", 23, 2, 20, 1),
    Sketcher.Constraint("Vertical", 8),
    Sketcher.Constraint("Horizontal", 9),
    Sketcher.Constraint("Vertical", 10),
    Sketcher.Constraint("Horizontal", 11),
    Sketcher.Constraint("Vertical", 16),
    Sketcher.Constraint("Horizontal", 17),
    Sketcher.Constraint("Vertical", 18),
    Sketcher.Constraint("Horizontal", 19),
    Sketcher.Constraint("Vertical", 20),
    Sketcher.Constraint("Horizontal", 21),
    Sketcher.Constraint("Vertical", 22),
    Sketcher.Constraint("Horizontal", 23),
    Sketcher.Constraint("Symmetric", 9, 2, 21, 2, -2),
    Sketcher.Constraint("PointOnObject", 17, 2, -2),
    Sketcher.Constraint("Perpendicular", 0, 1),
    Sketcher.Constraint("Perpendicular", 1, 2),
    Sketcher.Constraint("Perpendicular", 2, 3),
    Sketcher.Constraint("Perpendicular", 3, 4),
    Sketcher.Constraint("Perpendicular", 4, 5),
    Sketcher.Constraint("Perpendicular", 5, 6),
    Sketcher.Constraint("Perpendicular", 6, 7),
    Sketcher.Constraint("Perpendicular", 7, 12),
    Sketcher.Constraint("Perpendicular", 12, 13),
    Sketcher.Constraint("Perpendicular", 13, 14),
    Sketcher.Constraint("Perpendicular", 14, 15),
    Sketcher.Constraint("Horizontal", 9, 2, 16, 2),
    Sketcher.Constraint("Horizontal", 11, 2, 18, 2),
    Sketcher.Constraint("Horizontal", 19, 2, 22, 2),
    Sketcher.Constraint("Equal", 11, 17),
    Sketcher.Constraint("Equal", 19, 21),
    Sketcher.Constraint("Equal", 2, 4),
    Sketcher.Constraint("Equal", 3, 5),
    Sketcher.Constraint("Equal", 6, 12),
    Sketcher.Constraint("Equal", 7, 13),
    Sketcher.Constraint("DistanceX", 9, 1, 9, 2, 10.0),
    Sketcher.Constraint("DistanceY", 8, 2, 8, 1, 5.0),
    Sketcher.Constraint("Angle", 0, Q("60 deg")),
    Sketcher.Constraint("Distance", 0, 10.0),
    Sketcher.Constraint("Distance", 1, 5.0),
    Sketcher.Constraint("DistanceX", 20, 2, 8, 2, 97.0),
    Sketcher.Constraint("DistanceX", 0, 2, 4, 2, 24.25),
    Sketcher.Constraint("DistanceX", 5, 2, 12, 2, 19.25),
    Sketcher.Constraint("DistanceY", 0, 2, -1, 1, 73.746038),
    Sketcher.Constraint("DistanceX", -1, 1, 1, 2, 26.401758),
    Sketcher.Constraint("DistanceY", 6, 2, -1, 1, 37.90406),
    Sketcher.Constraint("DistanceY", -1, 1, 12, 2, 4.098172),
    Sketcher.Constraint("DistanceY", 5, 2, 8, 2, 87.631419),
])
pocket5 = body.newObject("PartDesign::Pocket", "Pocket004")
pocket5.Profile = sketch6
pocket5.Length = 5

sketch7 = body.newObject("Sketcher::SketchObject", "Sketch006")
sketch7.AttachmentSupport = (doc.getObject("XY_Plane"), [""])
sketch7.MapMode = "FlatFace"
sketch7.AttachmentOffset = App.Placement(App.Vector(0, 0, -85), App.Rotation())
sketch7.addGeometry([
    Part.Circle(App.Vector(-68.568957, 27.662548, 0), App.Vector(0, 0, 1), 2.1),
    Part.Circle(App.Vector(55.280906, 37.98337, 0), App.Vector(0, 0, 1), 2.1),
    Part.Circle(App.Vector(-87.299337, -135.559338, 0), App.Vector(0, 0, 1), 2.1),
], False)
sketch7.addConstraint([
    Sketcher.Constraint("Equal", 0, 1),
    Sketcher.Constraint("Equal", 1, 2),
    Sketcher.Constraint("Diameter", 0, 4.2),
    Sketcher.Constraint("DistanceY", -1, 1, 0, 3, 27.662548),
    Sketcher.Constraint("DistanceY", -1, 1, 1, 3, 37.98337),
    Sketcher.Constraint("DistanceY", 2, 3, -1, 1, 135.559338),
    Sketcher.Constraint("DistanceX", 2, 3, 0, 3, 18.73038),
    Sketcher.Constraint("DistanceX", 0, 3, -1, 1, 68.568957),
    Sketcher.Constraint("DistanceX", -1, 1, 1, 3, 55.280906),
])
doc.recompute()
hole = body.newObject("PartDesign::Hole", "Hole")
hole.Profile = sketch7
hole.ThreadType = "None"
hole.Diameter = 4.2
hole.DepthType = "ThroughAll"
hole.Reversed = True

sketch8 = body.newObject("Sketcher::SketchObject", "Sketch007")
sketch8.AttachmentSupport = (doc.getObject("XY_Plane"), [""])
sketch8.MapMode = "FlatFace"
sketch8.AttachmentOffset = App.Placement(App.Vector(0, 0, 5), App.Rotation())
sketch8.addGeometry([
    Part.Circle(App.Vector(0, 0, 0), App.Vector(0, 0, 1), 30),
    Part.Circle(App.Vector(-147.042149, -19.335088, 0), App.Vector(0, 0, 1), 6),
    Part.Circle(App.Vector(-147.042149, 10.187092, 0), App.Vector(0, 0, 1), 7.5),
], False)
sketch8.addConstraint([
    Sketcher.Constraint("Coincident", 0, 3, -1, 1),
    Sketcher.Constraint("Vertical", 1, 3, 2, 3),
    Sketcher.Constraint("Diameter", 0, 60.0),
    Sketcher.Constraint("Diameter", 1, 12.0),
    Sketcher.Constraint("Diameter", 2, 15.0),
    Sketcher.Constraint("DistanceX", 1, 3, -1, 1, 147.042149),
    Sketcher.Constraint("DistanceY", -1, 1, 2, 3, 10.187092),
    Sketcher.Constraint("DistanceY", 1, 3, 2, 3, 29.52218),
])
pocket6 = body.newObject("PartDesign::Pocket", "Pocket005")
pocket6.Profile = sketch8
pocket6.Length = 5

sketch9 = body.newObject("Sketcher::SketchObject", "Sketch008")
sketch9.AttachmentSupport = (doc.getObject("XY_Plane"), [""])
sketch9.MapMode = "FlatFace"
sketch9.addGeometry([
    Part.Circle(App.Vector(144.123215, 35.340734, 0), App.Vector(0, 0, 1), 1.5),
    Part.Circle(App.Vector(83.043195, 57.572044, 0), App.Vector(0, 0, 1), 1.5),
], False)
sketch9.addConstraint([
    Sketcher.Constraint("Equal", 0, 1),
    Sketcher.Constraint("Diameter", 0, 3.0),
    Sketcher.Constraint("DistanceX", 1, 3, 0, 3, 61.08002),
    Sketcher.Constraint("DistanceY", 0, 3, 1, 3, 22.231309),
    Sketcher.Constraint("DistanceX", -1, 1, 0, 3, 144.123215),
    Sketcher.Constraint("DistanceY", -1, 1, 0, 3, 35.340734),
])
pocket7 = body.newObject("PartDesign::Pocket", "Pocket006")
pocket7.Profile = sketch9
pocket7.Length = 10
pocket7.Reversed = True

doc.recompute()
